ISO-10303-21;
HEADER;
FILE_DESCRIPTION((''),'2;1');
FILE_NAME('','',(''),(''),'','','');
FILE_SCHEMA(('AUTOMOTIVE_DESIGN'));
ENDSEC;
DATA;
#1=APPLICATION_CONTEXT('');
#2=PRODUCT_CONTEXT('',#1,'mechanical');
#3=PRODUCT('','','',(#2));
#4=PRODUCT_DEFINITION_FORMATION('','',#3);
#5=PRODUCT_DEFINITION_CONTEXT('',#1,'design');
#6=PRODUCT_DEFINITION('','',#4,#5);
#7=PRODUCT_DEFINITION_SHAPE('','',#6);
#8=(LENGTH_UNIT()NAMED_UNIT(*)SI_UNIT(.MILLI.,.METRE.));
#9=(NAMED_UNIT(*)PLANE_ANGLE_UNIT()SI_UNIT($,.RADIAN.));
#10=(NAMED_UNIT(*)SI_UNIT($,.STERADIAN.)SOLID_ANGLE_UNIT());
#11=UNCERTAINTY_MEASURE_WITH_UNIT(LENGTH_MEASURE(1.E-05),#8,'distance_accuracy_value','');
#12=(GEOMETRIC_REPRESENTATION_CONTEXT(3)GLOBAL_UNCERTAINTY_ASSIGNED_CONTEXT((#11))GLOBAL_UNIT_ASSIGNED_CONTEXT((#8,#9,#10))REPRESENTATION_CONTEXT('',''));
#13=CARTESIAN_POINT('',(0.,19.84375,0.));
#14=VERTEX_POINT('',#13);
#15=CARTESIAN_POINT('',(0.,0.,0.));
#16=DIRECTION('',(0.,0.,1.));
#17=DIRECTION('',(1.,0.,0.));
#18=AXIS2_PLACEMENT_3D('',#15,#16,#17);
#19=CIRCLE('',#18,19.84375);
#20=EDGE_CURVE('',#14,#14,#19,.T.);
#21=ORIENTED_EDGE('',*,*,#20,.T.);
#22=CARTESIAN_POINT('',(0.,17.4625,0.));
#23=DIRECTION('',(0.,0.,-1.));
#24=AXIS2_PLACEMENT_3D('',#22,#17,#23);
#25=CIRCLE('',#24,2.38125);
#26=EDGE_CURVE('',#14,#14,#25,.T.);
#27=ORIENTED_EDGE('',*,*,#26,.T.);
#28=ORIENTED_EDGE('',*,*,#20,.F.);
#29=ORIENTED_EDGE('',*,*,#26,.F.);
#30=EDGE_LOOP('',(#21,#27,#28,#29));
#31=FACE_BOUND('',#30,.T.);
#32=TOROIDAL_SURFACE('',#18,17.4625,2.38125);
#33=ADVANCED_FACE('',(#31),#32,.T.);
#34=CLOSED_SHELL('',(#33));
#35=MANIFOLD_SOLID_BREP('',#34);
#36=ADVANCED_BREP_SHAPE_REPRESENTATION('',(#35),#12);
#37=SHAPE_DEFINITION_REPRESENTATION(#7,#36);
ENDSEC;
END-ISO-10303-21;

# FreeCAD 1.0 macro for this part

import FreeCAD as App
import Part
import Sketcher
Q = App.Units.Quantity

doc = App.newDocument("Part")
params = doc.addObject("Spreadsheet::Sheet", "Params")
for row, (alias, value) in enumerate([
    ("sketch1_diameter", "0.1875 in"),
    ("sketch2_diameter", "1.375 in"),
], start=1):
    params.set(f"A{row}", alias)
    params.set(f"B{row}", "=" + value)
    params.setAlias(f"B{row}", alias)

body = doc.addObject("PartDesign::Body", "Body")

# Sketch on YZ plane
sketch1 = body.newObject("Sketcher::SketchObject", "Sketch")
sketch1.AttachmentSupport = (doc.getObject("YZ_Plane"), [""])
sketch1.MapMode = "FlatFace"
sketch1.addGeometry(Part.Circle(App.Vector(17.5, 0, 0), App.Vector(0, 0, 1), 2.4), False)
sketch1.addConstraint(Sketcher.Constraint("PointOnObject", 0, 3, -1))
sketch1.addConstraint(Sketcher.Constraint("Diameter", 0, Q("0.1875 in")))
sketch1.addConstraint(Sketcher.Constraint("DistanceX", -1, 1, 0, 3, Q("0.6875 in")))
sketch1.setExpression("Constraints[1]", "Params.sketch1_diameter")

# Sketch on XY plane
sketch2 = body.newObject("Sketcher::SketchObject", "Sketch001")
sketch2.AttachmentSupport = (doc.getObject("XY_Plane"), [""])
sketch2.MapMode = "FlatFace"
sketch2.addGeometry(Part.Circle(App.Vector(0, 0, 0), App.Vector(0, 0, 1), 17), False)
sketch2.addConstraint(Sketcher.Constraint("Coincident", 0, 3, -1, 1))
sketch2.addConstraint(Sketcher.Constraint("Diameter", 0, Q("1.375 in")))
sketch2.setExpression("Constraints[1]", "Params.sketch2_diameter")
doc.recompute()

additivepipe = body.newObject("PartDesign::AdditivePipe", "AdditivePipe")
additivepipe.Profile = sketch1
additivepipe.Spine = (sketch2, ["Edge1"])

doc.recompute()
